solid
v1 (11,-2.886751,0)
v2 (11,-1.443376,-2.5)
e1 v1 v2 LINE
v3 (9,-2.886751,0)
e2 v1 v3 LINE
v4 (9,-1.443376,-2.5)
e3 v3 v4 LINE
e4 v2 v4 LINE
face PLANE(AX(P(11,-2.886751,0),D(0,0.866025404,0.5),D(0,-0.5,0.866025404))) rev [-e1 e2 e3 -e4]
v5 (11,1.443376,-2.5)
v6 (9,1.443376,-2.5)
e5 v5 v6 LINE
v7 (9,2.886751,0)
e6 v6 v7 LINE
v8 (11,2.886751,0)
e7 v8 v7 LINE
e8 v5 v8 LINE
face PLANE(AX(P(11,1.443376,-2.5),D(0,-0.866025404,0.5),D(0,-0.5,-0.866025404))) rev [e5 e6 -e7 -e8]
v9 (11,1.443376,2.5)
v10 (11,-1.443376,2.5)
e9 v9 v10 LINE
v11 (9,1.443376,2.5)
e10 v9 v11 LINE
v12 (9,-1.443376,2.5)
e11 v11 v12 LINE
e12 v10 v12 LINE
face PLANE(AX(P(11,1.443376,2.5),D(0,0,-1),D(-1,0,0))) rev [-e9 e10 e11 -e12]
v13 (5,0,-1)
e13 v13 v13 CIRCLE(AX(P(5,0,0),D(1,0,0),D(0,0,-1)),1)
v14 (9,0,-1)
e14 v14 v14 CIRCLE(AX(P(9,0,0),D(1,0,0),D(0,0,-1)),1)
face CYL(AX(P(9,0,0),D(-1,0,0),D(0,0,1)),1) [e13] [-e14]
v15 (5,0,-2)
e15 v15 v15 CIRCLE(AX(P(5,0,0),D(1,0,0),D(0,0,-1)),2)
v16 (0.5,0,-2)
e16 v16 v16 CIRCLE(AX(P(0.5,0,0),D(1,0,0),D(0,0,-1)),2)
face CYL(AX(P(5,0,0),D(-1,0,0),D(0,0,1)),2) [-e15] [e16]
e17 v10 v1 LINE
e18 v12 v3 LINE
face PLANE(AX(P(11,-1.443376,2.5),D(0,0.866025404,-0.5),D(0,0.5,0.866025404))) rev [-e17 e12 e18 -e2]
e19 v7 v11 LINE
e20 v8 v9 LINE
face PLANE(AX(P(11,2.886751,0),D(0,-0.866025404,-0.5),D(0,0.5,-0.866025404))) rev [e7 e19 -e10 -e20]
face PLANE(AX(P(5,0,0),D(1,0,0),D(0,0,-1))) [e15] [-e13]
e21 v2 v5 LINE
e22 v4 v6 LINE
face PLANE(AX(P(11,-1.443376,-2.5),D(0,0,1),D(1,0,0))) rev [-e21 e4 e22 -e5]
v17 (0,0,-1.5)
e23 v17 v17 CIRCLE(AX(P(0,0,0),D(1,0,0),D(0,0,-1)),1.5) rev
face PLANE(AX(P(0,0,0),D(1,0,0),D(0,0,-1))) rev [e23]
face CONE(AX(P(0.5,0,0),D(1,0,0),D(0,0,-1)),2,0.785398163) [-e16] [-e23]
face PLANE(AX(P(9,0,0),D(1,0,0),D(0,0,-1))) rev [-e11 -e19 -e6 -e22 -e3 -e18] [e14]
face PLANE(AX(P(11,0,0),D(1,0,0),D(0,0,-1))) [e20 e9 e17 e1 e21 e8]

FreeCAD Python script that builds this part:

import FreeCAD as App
import Part
import Sketcher

V = App.Vector
Q = App.Units.Quantity


def edges_at(feature, points):
    """Names of the edges that pass closest to the given points."""
    edges = feature.Shape.Edges
    near = lambda p: min(range(len(edges)), key=lambda i: edges[i].distToShape(Part.Vertex(*p))[0])
    return sorted({f"Edge{near(p) + 1}" for p in points})

doc = App.newDocument("Part")
body = doc.addObject("PartDesign::Body", "Body")

sketch1 = body.newObject("Sketcher::SketchObject", "Sketch")
sketch1.AttachmentSupport = (doc.getObject("YZ_Plane"), [""])
sketch1.MapMode = "FlatFace"
sketch1.addGeometry(Part.Circle(V(0, 0, 0), V(0, 0, 1), 2), False)
sketch1.addConstraint(Sketcher.Constraint("Coincident", 0, 3, -1, 1))
sketch1.addConstraint(Sketcher.Constraint("Diameter", 0, Q("4 mm")))
pad1 = body.newObject("PartDesign::Pad", "Pad")
pad1.Profile = sketch1
pad1.Length = 5

sketch2 = body.newObject("Sketcher::SketchObject", "Sketch001")
sketch2.AttachmentSupport = (doc.getObject("YZ_Plane"), [""])
sketch2.MapMode = "FlatFace"
sketch2.AttachmentOffset = App.Placement(V(0, 0, 5), App.Rotation())
sketch2.addGeometry(Part.Circle(V(0, 0, 0), V(0, 0, 1), 1), False)
sketch2.addConstraint(Sketcher.Constraint("Coincident", 0, 3, -1, 1))
sketch2.addConstraint(Sketcher.Constraint("Diameter", 0, Q("2 mm")))
pad2 = body.newObject("PartDesign::Pad", "Pad001")
pad2.Profile = sketch2
pad2.Length = 4

sketch3 = body.newObject("Sketcher::SketchObject", "Sketch002")
sketch3.AttachmentSupport = (doc.getObject("YZ_Plane"), [""])
sketch3.MapMode = "FlatFace"
sketch3.AttachmentOffset = App.Placement(V(0, 0, 9), App.Rotation())
sketch3.addGeometry(Part.LineSegment(V(-2.9, 0, 0), V(-1.4, -2.5, 0)), False)
sketch3.addGeometry(Part.LineSegment(V(-1.4, -2.5, 0), V(1.4, -2.5, 0)), False)
sketch3.addGeometry(Part.LineSegment(V(1.4, -2.5, 0), V(2.9, 0, 0)), False)
sketch3.addGeometry(Part.LineSegment(V(2.9, 0, 0), V(1.4, 2.5, 0)), False)
sketch3.addGeometry(Part.LineSegment(V(1.4, 2.5, 0), V(-1.4, 2.5, 0)), False)
sketch3.addGeometry(Part.LineSegment(V(-1.4, 2.5, 0), V(-2.9, 0, 0)), False)
sketch3.addConstraint(Sketcher.Constraint("Coincident", 0, 2, 1, 1))
sketch3.addConstraint(Sketcher.Constraint("Coincident", 1, 2, 2, 1))
sketch3.addConstraint(Sketcher.Constraint("Coincident", 2, 2, 3, 1))
sketch3.addConstraint(Sketcher.Constraint("Coincident", 3, 2, 4, 1))
sketch3.addConstraint(Sketcher.Constraint("Coincident", 4, 2, 5, 1))
sketch3.addConstraint(Sketcher.Constraint("Coincident", 5, 2, 0, 1))
sketch3.addConstraint(Sketcher.Constraint("Horizontal", 1))
sketch3.addConstraint(Sketcher.Constraint("Horizontal", 4))
sketch3.addConstraint(Sketcher.Constraint("Symmetric", 0, 2, 3, 2, -1, 1))
sketch3.addConstraint(Sketcher.Constraint("Symmetric", 2, 2, 5, 2, -1, 1))
sketch3.addConstraint(Sketcher.Constraint("PointOnObject", 2, 2, -1))
sketch3.addConstraint(Sketcher.Constraint("Parallel", 2, 5))
sketch3.addConstraint(Sketcher.Constraint("Vertical", 1, 2, 3, 2))
sketch3.addConstraint(Sketcher.Constraint("Angle", 0, Q("-60 deg")))
sketch3.addConstraint(Sketcher.Constraint("DistanceY", 1, 2, 3, 2, Q("5 mm")))
sketch3.addConstraint(Sketcher.Constraint("DistanceX", 1, 1, 1, 2, Q("2.886751 mm")))
pad3 = body.newObject("PartDesign::Pad", "Pad002")
pad3.Profile = sketch3
pad3.Length = 2
doc.recompute()

chamfer = body.newObject("PartDesign::Chamfer", "Chamfer")
chamfer.Base = (pad3, edges_at(pad3, [(0, 0, 2)]))
chamfer.Size = 0.5

doc.recompute()
